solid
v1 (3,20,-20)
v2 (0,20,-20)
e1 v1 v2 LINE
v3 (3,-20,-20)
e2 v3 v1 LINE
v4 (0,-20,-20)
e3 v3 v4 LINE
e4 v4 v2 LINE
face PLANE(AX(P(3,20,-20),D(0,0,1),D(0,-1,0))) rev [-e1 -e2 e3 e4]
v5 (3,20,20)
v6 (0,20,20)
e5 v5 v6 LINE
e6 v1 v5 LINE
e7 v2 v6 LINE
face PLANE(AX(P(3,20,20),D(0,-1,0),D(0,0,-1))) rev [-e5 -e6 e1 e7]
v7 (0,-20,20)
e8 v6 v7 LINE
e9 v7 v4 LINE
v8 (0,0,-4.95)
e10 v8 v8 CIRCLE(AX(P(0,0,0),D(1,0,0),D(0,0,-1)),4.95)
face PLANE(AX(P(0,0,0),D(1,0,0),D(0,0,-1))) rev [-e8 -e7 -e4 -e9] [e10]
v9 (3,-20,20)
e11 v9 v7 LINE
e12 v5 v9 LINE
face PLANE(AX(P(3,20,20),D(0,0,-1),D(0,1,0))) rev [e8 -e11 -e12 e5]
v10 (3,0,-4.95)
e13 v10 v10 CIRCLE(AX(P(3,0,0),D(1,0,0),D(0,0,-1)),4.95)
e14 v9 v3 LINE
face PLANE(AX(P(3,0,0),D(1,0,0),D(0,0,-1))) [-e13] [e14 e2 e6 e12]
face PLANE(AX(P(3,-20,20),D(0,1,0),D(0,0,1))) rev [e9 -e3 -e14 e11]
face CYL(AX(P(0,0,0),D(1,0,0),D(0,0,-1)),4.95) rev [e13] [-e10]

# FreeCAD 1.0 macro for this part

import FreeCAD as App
import Part
import Sketcher

V = App.Vector


def add_polygon(sketch, points):
    """Adds a closed chain of lines whose ends are joined by coincident constraints."""
    first, n = sketch.GeometryCount, len(points)
    for a, b in zip(points, points[1:] + points[:1]):
        sketch.addGeometry(Part.LineSegment(App.Vector(*a, 0), App.Vector(*b, 0)), False)
    for i in range(n):
        sketch.addConstraint(Sketcher.Constraint("Coincident", first + i, 2, first + (i + 1) % n, 1))

doc = App.newDocument("Part")
body = doc.addObject("PartDesign::Body", "Body")

sketch1 = body.newObject("Sketcher::SketchObject", "Sketch")
sketch1.AttachmentSupport = (doc.getObject("YZ_Plane"), [""])
sketch1.MapMode = "FlatFace"
add_polygon(sketch1, [(20, 20), (-20, 20), (-20, -20), (20, -20)])
sketch1.addConstraint(Sketcher.Constraint("Horizontal", 0))
sketch1.addConstraint(Sketcher.Constraint("Vertical", 1))
sketch1.addConstraint(Sketcher.Constraint("Horizontal", 2))
sketch1.addConstraint(Sketcher.Constraint("Vertical", 3))
sketch1.addConstraint(Sketcher.Constraint("Symmetric", 0, 2, 2, 2, -1, 1))
sketch1.addConstraint(Sketcher.Constraint("Equal", 2, 1))
sketch1.addConstraint(Sketcher.Constraint("DistanceX", 0, 2, 0, 1, 40.0))
pad1 = body.newObject("PartDesign::Pad", "Pad")
pad1.Profile = sketch1
pad1.Length = 3

sketch2 = body.newObject("Sketcher::SketchObject", "Sketch001")
sketch2.AttachmentSupport = (doc.getObject("YZ_Plane"), [""])
sketch2.MapMode = "FlatFace"
sketch2.AttachmentOffset = App.Placement(V(0, 0, 3), App.Rotation())
sketch2.addGeometry(Part.Circle(V(0, 0, 0), V(0, 0, 1), 4.95), False)
sketch2.addConstraint(Sketcher.Constraint("Coincident", 0, 3, -1, 1))
sketch2.addConstraint(Sketcher.Constraint("Diameter", 0, 9.9))
pocket1 = body.newObject("PartDesign::Pocket", "Pocket")
pocket1.Profile = sketch2
pocket1.Length = 3

doc.recompute()
